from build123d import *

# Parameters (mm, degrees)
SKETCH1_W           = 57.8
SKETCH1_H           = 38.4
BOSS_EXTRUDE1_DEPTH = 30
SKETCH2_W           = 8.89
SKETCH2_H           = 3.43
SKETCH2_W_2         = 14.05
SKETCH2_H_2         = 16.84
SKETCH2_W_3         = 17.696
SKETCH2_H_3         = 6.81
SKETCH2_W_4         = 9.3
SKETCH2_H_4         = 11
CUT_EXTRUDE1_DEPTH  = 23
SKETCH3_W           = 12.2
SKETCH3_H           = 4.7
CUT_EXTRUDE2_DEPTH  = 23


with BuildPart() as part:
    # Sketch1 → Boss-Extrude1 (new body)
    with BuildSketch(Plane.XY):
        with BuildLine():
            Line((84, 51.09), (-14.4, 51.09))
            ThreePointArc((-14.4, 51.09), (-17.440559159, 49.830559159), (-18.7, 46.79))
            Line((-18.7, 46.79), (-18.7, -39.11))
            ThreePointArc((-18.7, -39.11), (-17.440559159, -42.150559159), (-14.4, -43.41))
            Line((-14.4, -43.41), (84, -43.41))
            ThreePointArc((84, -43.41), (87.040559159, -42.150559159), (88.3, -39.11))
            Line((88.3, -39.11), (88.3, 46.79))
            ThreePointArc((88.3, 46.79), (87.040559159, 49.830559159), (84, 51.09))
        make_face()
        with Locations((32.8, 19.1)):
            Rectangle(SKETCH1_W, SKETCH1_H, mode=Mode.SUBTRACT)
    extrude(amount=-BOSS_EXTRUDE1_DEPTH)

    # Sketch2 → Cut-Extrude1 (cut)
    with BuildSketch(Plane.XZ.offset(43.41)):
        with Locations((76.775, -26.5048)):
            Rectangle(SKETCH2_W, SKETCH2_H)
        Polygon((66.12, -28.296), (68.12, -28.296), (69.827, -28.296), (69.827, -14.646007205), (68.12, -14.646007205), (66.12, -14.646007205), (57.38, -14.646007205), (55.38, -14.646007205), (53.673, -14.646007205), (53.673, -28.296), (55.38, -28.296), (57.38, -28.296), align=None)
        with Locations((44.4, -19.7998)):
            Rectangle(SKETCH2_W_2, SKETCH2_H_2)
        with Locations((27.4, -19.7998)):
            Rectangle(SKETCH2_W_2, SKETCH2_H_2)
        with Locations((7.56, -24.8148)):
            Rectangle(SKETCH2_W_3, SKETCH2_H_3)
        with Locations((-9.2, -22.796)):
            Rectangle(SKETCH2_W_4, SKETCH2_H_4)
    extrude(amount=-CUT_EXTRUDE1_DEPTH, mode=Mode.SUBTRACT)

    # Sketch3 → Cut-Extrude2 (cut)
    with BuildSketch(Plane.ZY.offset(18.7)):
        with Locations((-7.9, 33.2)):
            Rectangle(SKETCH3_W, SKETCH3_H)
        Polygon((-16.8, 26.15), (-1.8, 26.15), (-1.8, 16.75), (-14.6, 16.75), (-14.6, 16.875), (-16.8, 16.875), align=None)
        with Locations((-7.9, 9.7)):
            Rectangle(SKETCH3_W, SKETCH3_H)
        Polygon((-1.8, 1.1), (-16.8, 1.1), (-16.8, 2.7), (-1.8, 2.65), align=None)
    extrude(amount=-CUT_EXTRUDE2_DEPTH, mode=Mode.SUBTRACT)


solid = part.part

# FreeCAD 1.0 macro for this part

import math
import FreeCAD as App
import Part
import Sketcher
Q = App.Units.Quantity


def add_polygon(sketch, points):
    """Adds a closed chain of lines whose ends are joined by coincident constraints."""
    first, n = sketch.GeometryCount, len(points)
    for a, b in zip(points, points[1:] + points[:1]):
        sketch.addGeometry(Part.LineSegment(App.Vector(*a, 0), App.Vector(*b, 0)), False)
    for i in range(n):
        sketch.addConstraint(Sketcher.Constraint("Coincident", first + i, 2, first + (i + 1) % n, 1))

doc = App.newDocument("Part")
params = doc.addObject("Spreadsheet::Sheet", "Params")
for row, (alias, value) in enumerate([
    ("sketch1_radius", "4.3 mm"),
    ("sketch1_width", "98.4 mm"),
    ("sketch1_width2", "57.8 mm"),
    ("sketch1_height", "85.9 mm"),
    ("sketch1_height2", "38.4 mm"),
    ("pad1_length", "30 mm"),
    ("sketch2_height", "11 mm"),
    ("sketch2_width", "9.3 mm"),
    ("sketch2_width2", "8.89 mm"),
    ("sketch2_width3", "14.05 mm"),
    ("sketch2_height2", "3.43 mm"),
    ("pocket1_length", "23 mm"),
    ("sketch3_height", "15 mm"),
    ("sketch3_width", "4.7 mm"),
    ("sketch3_width2", "9.4 mm"),
    ("sketch3_width3", "1.6 mm"),
    ("sketch3_height2", "12.2 mm"),
    ("pocket2_length", "23 mm"),
], start=1):
    params.set(f"A{row}", alias)
    params.set(f"B{row}", "=" + value)
    params.setAlias(f"B{row}", alias)

body = doc.addObject("PartDesign::Body", "Body")

sketch1 = body.newObject("Sketcher::SketchObject", "Sketch")
sketch1.AttachmentSupport = (doc.getObject("XY_Plane"), [""])
sketch1.MapMode = "FlatFace"
sketch1.addGeometry(Part.LineSegment(App.Vector(84, 51.1, 0), App.Vector(-14.4, 51.1, 0)), False)
sketch1.addGeometry(Part.ArcOfCircle(Part.Circle(App.Vector(-14.4, 46.8, 0), App.Vector(0, 0, 1), 4.3), math.radians(90), math.radians(180)), False)
sketch1.addGeometry(Part.LineSegment(App.Vector(-18.7, 46.8, 0), App.Vector(-18.7, -39.1, 0)), False)
sketch1.addGeometry(Part.ArcOfCircle(Part.Circle(App.Vector(-14.4, -39.1, 0), App.Vector(0, 0, 1), 4.3), math.radians(180), math.radians(270)), False)
sketch1.addGeometry(Part.LineSegment(App.Vector(-14.4, -43.4, 0), App.Vector(84, -43.4, 0)), False)
sketch1.addGeometry(Part.ArcOfCircle(Part.Circle(App.Vector(84, -39.1, 0), App.Vector(0, 0, 1), 4.3), math.radians(-90), math.radians(0)), False)
sketch1.addGeometry(Part.LineSegment(App.Vector(88.3, -39.1, 0), App.Vector(88.3, 46.8, 0)), False)
sketch1.addGeometry(Part.ArcOfCircle(Part.Circle(App.Vector(84, 46.8, 0), App.Vector(0, 0, 1), 4.3), math.radians(0), math.radians(90)), False)
add_polygon(sketch1, [(61.7, -0.1), (3.9, -0.1), (3.9, 38.3), (61.7, 38.3)])
sketch1.addConstraint([
    Sketcher.Constraint("Tangent", 0, 2, 1, 1),
    Sketcher.Constraint("Tangent", 1, 2, 2, 1),
    Sketcher.Constraint("Tangent", 2, 2, 3, 1),
    Sketcher.Constraint("Tangent", 3, 2, 4, 1),
    Sketcher.Constraint("Tangent", 4, 2, 5, 1),
    Sketcher.Constraint("Tangent", 5, 2, 6, 1),
    Sketcher.Constraint("Tangent", 6, 2, 7, 1),
    Sketcher.Constraint("Tangent", 7, 2, 0, 1),
    Sketcher.Constraint("Horizontal", 0),
    Sketcher.Constraint("Vertical", 2),
    Sketcher.Constraint("Horizontal", 4),
    Sketcher.Constraint("Vertical", 6),
    Sketcher.Constraint("Horizontal", 8),
    Sketcher.Constraint("Vertical", 9),
    Sketcher.Constraint("Horizontal", 10),
    Sketcher.Constraint("Vertical", 11),
    Sketcher.Constraint("Equal", 1, 3),
    Sketcher.Constraint("Equal", 3, 5),
    Sketcher.Constraint("Equal", 5, 7),
    Sketcher.Constraint("Radius", 1, Q("4.3 mm")),
    Sketcher.Constraint("DistanceX", 0, 2, 0, 1, Q("98.4 mm")),
    Sketcher.Constraint("DistanceX", 8, 2, 8, 1, Q("57.8 mm")),
    Sketcher.Constraint("DistanceY", 2, 2, 2, 1, Q("85.9 mm")),
    Sketcher.Constraint("DistanceY", 9, 1, 9, 2, Q("38.4 mm")),
    Sketcher.Constraint("DistanceX", -1, 1, 5, 3, Q("84 mm")),
    Sketcher.Constraint("DistanceX", -1, 1, 8, 2, Q("3.9 mm")),
    Sketcher.Constraint("DistanceY", 8, 2, -1, 1, Q("0.1 mm")),
    Sketcher.Constraint("DistanceY", -1, 1, 1, 3, Q("46.79 mm")),
])
sketch1.setExpression("Constraints[23]", "Params.sketch1_radius")
sketch1.setExpression("Constraints[24]", "Params.sketch1_width")
sketch1.setExpression("Constraints[25]", "Params.sketch1_width2")
sketch1.setExpression("Constraints[26]", "Params.sketch1_height")
sketch1.setExpression("Constraints[27]", "Params.sketch1_height2")
pad1 = body.newObject("PartDesign::Pad", "Pad")
pad1.Profile = sketch1
pad1.setExpression("Length", "Params.pad1_length")
pad1.Reversed = True

sketch2 = body.newObject("Sketcher::SketchObject", "Sketch001")
sketch2.AttachmentSupport = (doc.getObject("XZ_Plane"), [""])
sketch2.MapMode = "FlatFace"
sketch2.AttachmentOffset = App.Placement(App.Vector(0, 0, 43.41), App.Rotation())
add_polygon(sketch2, [(72.3, -24.8), (72.3, -28.2), (81.2, -28.2), (81.2, -24.8)])
add_polygon(sketch2, [(69.8, -28.3), (69.8, -14.6), (53.7, -14.6), (53.7, -28.3)])
add_polygon(sketch2, [(37.4, -11.4), (37.4, -28.2), (51.4, -28.2), (51.4, -11.4)])
add_polygon(sketch2, [(20.4, -11.4), (20.4, -28.2), (34.4, -28.2), (34.4, -11.4)])
add_polygon(sketch2, [(-1.3, -21.4), (-1.3, -28.2), (16.4, -28.2), (16.4, -21.4)])
add_polygon(sketch2, [(-13.8, -17.3), (-13.8, -28.3), (-4.5, -28.3), (-4.5, -17.3)])
sketch2.addConstraint([
    Sketcher.Constraint("Vertical", 0),
    Sketcher.Constraint("Horizontal", 1),
    Sketcher.Constraint("Vertical", 2),
    Sketcher.Constraint("Horizontal", 3),
    Sketcher.Constraint("Vertical", 4),
    Sketcher.Constraint("Horizontal", 5),
    Sketcher.Constraint("Vertical", 6),
    Sketcher.Constraint("Horizontal", 7),
    Sketcher.Constraint("Vertical", 8),
    Sketcher.Constraint("Horizontal", 9),
    Sketcher.Constraint("Vertical", 10),
    Sketcher.Constraint("Horizontal", 11),
    Sketcher.Constraint("Vertical", 12),
    Sketcher.Constraint("Horizontal", 13),
    Sketcher.Constraint("Vertical", 14),
    Sketcher.Constraint("Horizontal", 15),
    Sketcher.Constraint("Vertical", 16),
    Sketcher.Constraint("Horizontal", 17),
    Sketcher.Constraint("Vertical", 18),
    Sketcher.Constraint("Horizontal", 19),
    Sketcher.Constraint("Vertical", 20),
    Sketcher.Constraint("Horizontal", 21),
    Sketcher.Constraint("Vertical", 22),
    Sketcher.Constraint("Horizontal", 23),
    Sketcher.Constraint("Horizontal", 1, 2, 8, 2),
    Sketcher.Constraint("Horizontal", 9, 2, 12, 2),
    Sketcher.Constraint("Horizontal", 11, 2, 14, 2),
    Sketcher.Constraint("Horizontal", 13, 2, 16, 2),
    Sketcher.Constraint("Horizontal", 7, 2, 20, 2),
    Sketcher.Constraint("Equal", 11, 13),
    Sketcher.Constraint("DistanceY", 20, 2, 20, 1, Q("11 mm")),
    Sketcher.Constraint("DistanceX", 21, 1, 21, 2, Q("9.3 mm")),
    Sketcher.Constraint("DistanceX", 12, 2, 8, 2, Q("17 mm")),
    Sketcher.Constraint("DistanceX", 1, 1, 1, 2, Q("8.89 mm")),
    Sketcher.Constraint("DistanceX", 9, 1, 9, 2, Q("14.05 mm")),
    Sketcher.Constraint("DistanceY", 0, 2, 0, 1, Q("3.43 mm")),
    Sketcher.Constraint("DistanceY", 8, 2, 8, 1, Q("16.84 mm")),
    Sketcher.Constraint("DistanceY", 16, 2, 16, 1, Q("6.81 mm")),
    Sketcher.Constraint("DistanceX", 5, 2, 5, 1, Q("16.154 mm")),
    Sketcher.Constraint("DistanceX", 17, 1, 17, 2, Q("17.696 mm")),
    Sketcher.Constraint("DistanceX", -1, 1, 0, 2, Q("72.33 mm")),
    Sketcher.Constraint("DistanceX", 20, 2, -1, 1, Q("13.85 mm")),
    Sketcher.Constraint("DistanceX", -1, 1, 4, 2, Q("69.827 mm")),
    Sketcher.Constraint("DistanceY", 6, 2, -1, 1, Q("28.296 mm")),
    Sketcher.Constraint("DistanceX", -1, 1, 8, 2, Q("37.375 mm")),
    Sketcher.Constraint("DistanceX", 16, 2, -1, 1, Q("1.288 mm")),
    Sketcher.Constraint("DistanceY", 0, 2, -1, 1, Q("28.2198 mm")),
    Sketcher.Constraint("DistanceY", 4, 1, 4, 2, Q("13.649993 mm")),
])
sketch2.setExpression("Constraints[54]", "Params.sketch2_height")
sketch2.setExpression("Constraints[55]", "Params.sketch2_width")
sketch2.setExpression("Constraints[57]", "Params.sketch2_width2")
sketch2.setExpression("Constraints[58]", "Params.sketch2_width3")
sketch2.setExpression("Constraints[59]", "Params.sketch2_height2")
pocket1 = body.newObject("PartDesign::Pocket", "Pocket")
pocket1.Profile = sketch2
pocket1.setExpression("Length", "Params.pocket1_length")

sketch3 = body.newObject("Sketcher::SketchObject", "Sketch002")
sketch3.AttachmentSupport = (doc.getObject("YZ_Plane"), [""])
sketch3.MapMode = "FlatFace"
sketch3.AttachmentOffset = App.Placement(App.Vector(0, 0, -18.7), App.Rotation())
add_polygon(sketch3, [(35.55, -14), (30.85, -14), (30.85, -1.8), (35.55, -1.8)])
add_polygon(sketch3, [(26.15, -1.8), (26.15, -16.8), (16.88, -16.8), (16.88, -14.6), (16.75, -14.6), (16.75, -1.8)])
add_polygon(sketch3, [(12.05, -14), (7.35, -14), (7.35, -1.8), (12.05, -1.8)])
add_polygon(sketch3, [(1.1, -16.8), (1.1, -1.8), (2.65, -1.8), (2.7, -16.8)])
sketch3.addConstraint([
    Sketcher.Constraint("Horizontal", 0),
    Sketcher.Constraint("Vertical", 1),
    Sketcher.Constraint("Horizontal", 2),
    Sketcher.Constraint("Vertical", 3),
    Sketcher.Constraint("Vertical", 4),
    Sketcher.Constraint("Horizontal", 5),
    Sketcher.Constraint("Vertical", 6),
    Sketcher.Constraint("Horizontal", 7),
    Sketcher.Constraint("Vertical", 8),
    Sketcher.Constraint("Horizontal", 9),
    Sketcher.Constraint("Horizontal", 10),
    Sketcher.Constraint("Vertical", 11),
    Sketcher.Constraint("Horizontal", 12),
    Sketcher.Constraint("Vertical", 13),
    Sketcher.Constraint("Vertical", 14),
    Sketcher.Constraint("Horizontal", 15),
    Sketcher.Constraint("Horizontal", 17),
    Sketcher.Constraint("Horizontal", 2, 2, 8, 2),
    Sketcher.Constraint("Horizontal", 3, 2, 10, 2),
    Sketcher.Constraint("Horizontal", 9, 2, 11, 2),
    Sketcher.Constraint("Horizontal", 12, 2, 14, 2),
    Sketcher.Constraint("Horizontal", 5, 2, 16, 2),
    Sketcher.Constraint("Equal", 2, 10),
    Sketcher.Constraint("DistanceY", 4, 2, 4, 1, Q("15 mm")),
    Sketcher.Constraint("DistanceX", 0, 2, 0, 1, Q("4.7 mm")),
    Sketcher.Constraint("DistanceX", 9, 1, 9, 2, Q("9.4 mm")),
    Sketcher.Constraint("DistanceX", 17, 2, 17, 1, Q("1.6 mm")),
    Sketcher.Constraint("DistanceY", 1, 1, 1, 2, Q("12.2 mm")),
    Sketcher.Constraint("DistanceY", 6, 1, 6, 2, Q("2.2 mm")),
    Sketcher.Constraint("DistanceY", 0, 2, -1, 1, Q("14 mm")),
    Sketcher.Constraint("DistanceX", 15, 1, 15, 2, Q("1.55 mm")),
    Sketcher.Constraint("DistanceX", -1, 1, 14, 2, Q("1.1 mm")),
    Sketcher.Constraint("DistanceX", 4, 2, 0, 2, Q("4.7 mm")),
    Sketcher.Constraint("DistanceX", 10, 2, 7, 2, Q("9.4 mm")),
    Sketcher.Constraint("DistanceX", 15, 2, 11, 2, Q("4.7 mm")),
    Sketcher.Constraint("DistanceX", 5, 2, 5, 1, Q("9.275 mm")),
])
sketch3.setExpression("Constraints[41]", "Params.sketch3_height")
sketch3.setExpression("Constraints[42]", "Params.sketch3_width")
sketch3.setExpression("Constraints[43]", "Params.sketch3_width2")
sketch3.setExpression("Constraints[44]", "Params.sketch3_width3")
sketch3.setExpression("Constraints[45]", "Params.sketch3_height2")
pocket2 = body.newObject("PartDesign::Pocket", "Pocket001")
pocket2.Profile = sketch3
pocket2.setExpression("Length", "Params.pocket2_length")
pocket2.Reversed = True

doc.recompute()
